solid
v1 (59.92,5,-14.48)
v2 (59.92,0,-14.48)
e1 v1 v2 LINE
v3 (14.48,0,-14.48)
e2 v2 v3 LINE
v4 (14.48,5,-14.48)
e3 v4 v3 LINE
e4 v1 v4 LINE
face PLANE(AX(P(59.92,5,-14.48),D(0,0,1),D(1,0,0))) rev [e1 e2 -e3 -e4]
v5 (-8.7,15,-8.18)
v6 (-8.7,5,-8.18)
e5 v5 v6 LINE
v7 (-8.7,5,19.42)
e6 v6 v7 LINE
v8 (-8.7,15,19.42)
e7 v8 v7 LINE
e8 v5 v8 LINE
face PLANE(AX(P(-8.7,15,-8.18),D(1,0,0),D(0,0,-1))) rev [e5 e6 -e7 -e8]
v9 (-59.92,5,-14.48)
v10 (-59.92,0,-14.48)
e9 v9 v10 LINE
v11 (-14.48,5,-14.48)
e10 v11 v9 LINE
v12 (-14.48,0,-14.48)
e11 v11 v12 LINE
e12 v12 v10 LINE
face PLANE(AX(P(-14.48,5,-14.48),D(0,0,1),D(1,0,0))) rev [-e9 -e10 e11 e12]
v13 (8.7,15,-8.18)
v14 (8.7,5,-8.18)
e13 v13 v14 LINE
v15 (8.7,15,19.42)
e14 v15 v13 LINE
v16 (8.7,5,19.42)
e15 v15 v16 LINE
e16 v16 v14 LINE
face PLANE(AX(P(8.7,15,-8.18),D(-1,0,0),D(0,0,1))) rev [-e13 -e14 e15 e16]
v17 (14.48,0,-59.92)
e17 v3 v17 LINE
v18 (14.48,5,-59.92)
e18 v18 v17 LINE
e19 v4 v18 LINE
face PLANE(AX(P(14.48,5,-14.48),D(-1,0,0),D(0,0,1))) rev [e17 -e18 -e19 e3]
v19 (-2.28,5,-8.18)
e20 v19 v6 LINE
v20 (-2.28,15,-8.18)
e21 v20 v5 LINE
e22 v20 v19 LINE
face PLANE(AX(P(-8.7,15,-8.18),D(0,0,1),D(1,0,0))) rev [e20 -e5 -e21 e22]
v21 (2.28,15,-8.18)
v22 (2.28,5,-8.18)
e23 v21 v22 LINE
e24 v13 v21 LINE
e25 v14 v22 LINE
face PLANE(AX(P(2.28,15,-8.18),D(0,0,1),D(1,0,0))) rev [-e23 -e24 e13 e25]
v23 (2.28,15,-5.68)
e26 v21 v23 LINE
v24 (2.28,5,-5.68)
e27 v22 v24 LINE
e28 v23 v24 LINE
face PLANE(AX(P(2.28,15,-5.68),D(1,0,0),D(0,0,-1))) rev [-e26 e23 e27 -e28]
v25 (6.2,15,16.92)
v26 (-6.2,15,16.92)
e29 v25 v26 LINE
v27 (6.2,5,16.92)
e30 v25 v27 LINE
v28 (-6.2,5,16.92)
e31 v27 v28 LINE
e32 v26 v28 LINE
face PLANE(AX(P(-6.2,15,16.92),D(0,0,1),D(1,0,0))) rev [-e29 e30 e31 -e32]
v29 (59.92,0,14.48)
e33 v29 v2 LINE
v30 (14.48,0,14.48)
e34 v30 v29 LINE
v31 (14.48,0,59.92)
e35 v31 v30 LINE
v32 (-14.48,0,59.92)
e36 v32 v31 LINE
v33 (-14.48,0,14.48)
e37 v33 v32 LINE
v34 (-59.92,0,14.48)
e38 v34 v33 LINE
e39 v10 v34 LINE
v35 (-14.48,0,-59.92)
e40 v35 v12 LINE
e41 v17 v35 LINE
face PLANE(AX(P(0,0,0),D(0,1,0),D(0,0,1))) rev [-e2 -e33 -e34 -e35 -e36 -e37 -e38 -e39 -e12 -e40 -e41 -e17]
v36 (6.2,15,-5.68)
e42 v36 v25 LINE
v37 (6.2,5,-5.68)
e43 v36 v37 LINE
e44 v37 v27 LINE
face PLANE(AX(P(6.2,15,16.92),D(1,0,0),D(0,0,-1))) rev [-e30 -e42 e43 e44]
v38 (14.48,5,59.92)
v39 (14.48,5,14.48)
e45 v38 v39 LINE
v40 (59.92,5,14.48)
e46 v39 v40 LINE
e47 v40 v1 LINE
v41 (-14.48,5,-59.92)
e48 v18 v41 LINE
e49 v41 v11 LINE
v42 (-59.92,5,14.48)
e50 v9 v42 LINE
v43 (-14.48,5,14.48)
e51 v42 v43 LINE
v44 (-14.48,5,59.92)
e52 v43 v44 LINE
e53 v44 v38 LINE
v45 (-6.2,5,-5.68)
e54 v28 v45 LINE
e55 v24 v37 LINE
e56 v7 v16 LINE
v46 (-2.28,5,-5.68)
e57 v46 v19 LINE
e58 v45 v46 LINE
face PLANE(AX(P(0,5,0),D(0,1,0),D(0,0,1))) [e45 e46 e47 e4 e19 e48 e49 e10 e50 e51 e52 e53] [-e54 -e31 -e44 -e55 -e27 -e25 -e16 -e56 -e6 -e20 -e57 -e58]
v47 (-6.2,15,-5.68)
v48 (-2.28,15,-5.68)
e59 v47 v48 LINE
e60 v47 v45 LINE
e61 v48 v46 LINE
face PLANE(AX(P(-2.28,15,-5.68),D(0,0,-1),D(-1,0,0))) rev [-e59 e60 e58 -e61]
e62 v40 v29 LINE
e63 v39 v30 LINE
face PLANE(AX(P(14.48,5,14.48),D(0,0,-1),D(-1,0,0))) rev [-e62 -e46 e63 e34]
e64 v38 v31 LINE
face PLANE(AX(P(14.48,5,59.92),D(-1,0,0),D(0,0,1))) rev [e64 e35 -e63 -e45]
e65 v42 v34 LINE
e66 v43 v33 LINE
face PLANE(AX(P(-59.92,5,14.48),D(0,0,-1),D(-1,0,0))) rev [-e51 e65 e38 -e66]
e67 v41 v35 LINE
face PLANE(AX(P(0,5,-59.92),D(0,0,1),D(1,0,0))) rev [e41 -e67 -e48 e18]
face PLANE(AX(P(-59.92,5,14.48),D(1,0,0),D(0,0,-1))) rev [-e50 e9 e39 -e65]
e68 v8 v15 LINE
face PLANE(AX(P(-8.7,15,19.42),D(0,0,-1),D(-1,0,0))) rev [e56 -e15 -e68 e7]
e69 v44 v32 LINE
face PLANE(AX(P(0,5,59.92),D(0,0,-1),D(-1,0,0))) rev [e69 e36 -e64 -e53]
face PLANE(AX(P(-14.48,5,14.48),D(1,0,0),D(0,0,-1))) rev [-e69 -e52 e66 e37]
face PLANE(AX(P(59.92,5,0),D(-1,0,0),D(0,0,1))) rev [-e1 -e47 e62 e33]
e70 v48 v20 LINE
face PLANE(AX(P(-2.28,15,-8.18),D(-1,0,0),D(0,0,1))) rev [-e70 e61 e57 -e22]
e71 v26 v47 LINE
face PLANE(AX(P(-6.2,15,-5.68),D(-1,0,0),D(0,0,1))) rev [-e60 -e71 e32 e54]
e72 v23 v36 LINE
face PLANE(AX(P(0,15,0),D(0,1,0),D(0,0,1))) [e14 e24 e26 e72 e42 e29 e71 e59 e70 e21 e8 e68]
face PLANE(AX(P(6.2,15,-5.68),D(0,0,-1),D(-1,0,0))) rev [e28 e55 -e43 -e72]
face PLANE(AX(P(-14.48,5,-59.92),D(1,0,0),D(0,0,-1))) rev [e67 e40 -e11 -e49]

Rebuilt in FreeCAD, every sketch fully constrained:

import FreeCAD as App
import Part
import Sketcher


def add_polygon(sketch, points):
    """Adds a closed chain of lines whose ends are joined by coincident constraints."""
    first, n = sketch.GeometryCount, len(points)
    for a, b in zip(points, points[1:] + points[:1]):
        sketch.addGeometry(Part.LineSegment(App.Vector(*a, 0), App.Vector(*b, 0)), False)
    for i in range(n):
        sketch.addConstraint(Sketcher.Constraint("Coincident", first + i, 2, first + (i + 1) % n, 1))

doc = App.newDocument("Part")
params = doc.addObject("Spreadsheet::Sheet", "Params")
for row, (alias, value) in enumerate([
    ("sketch1_width", "45.44 mm"),
    ("sketch1_width2", "28.96 mm"),
    ("pad1_length", "5 mm"),
    ("sketch2_width", "17.4 mm"),
    ("sketch2_width2", "12.4 mm"),
    ("sketch2_height", "27.6 mm"),
    ("sketch2_height2", "2.5 mm"),
    ("sketch2_height3", "22.6 mm"),
    ("pad2_length", "10 mm"),
], start=1):
    params.set(f"A{row}", alias)
    params.set(f"B{row}", "=" + value)
    params.setAlias(f"B{row}", alias)

body = doc.addObject("PartDesign::Body", "Body")

# Sketch on XZ plane
sketch1 = body.newObject("Sketcher::SketchObject", "Sketch")
sketch1.AttachmentSupport = (doc.getObject("XZ_Plane"), [""])
sketch1.MapMode = "FlatFace"
add_polygon(sketch1, [(-14.48, -59.92), (-14.48, -14.48), (-59.92, -14.48), (-59.92, 14.48), (-14.48, 14.48), (-14.48, 59.92), (14.48, 59.92), (14.48, 14.48), (59.92, 14.48), (59.92, -14.48), (14.48, -14.48), (14.48, -59.92)])  # lines 0-11
sketch1.addConstraint(Sketcher.Constraint("Vertical", 0))
sketch1.addConstraint(Sketcher.Constraint("Horizontal", 1))
sketch1.addConstraint(Sketcher.Constraint("Vertical", 2))
sketch1.addConstraint(Sketcher.Constraint("Horizontal", 3))
sketch1.addConstraint(Sketcher.Constraint("Vertical", 4))
sketch1.addConstraint(Sketcher.Constraint("Horizontal", 5))
sketch1.addConstraint(Sketcher.Constraint("Vertical", 6))
sketch1.addConstraint(Sketcher.Constraint("Horizontal", 7))
sketch1.addConstraint(Sketcher.Constraint("Vertical", 8))
sketch1.addConstraint(Sketcher.Constraint("Horizontal", 9))
sketch1.addConstraint(Sketcher.Constraint("Vertical", 10))
sketch1.addConstraint(Sketcher.Constraint("Horizontal", 11))
sketch1.addConstraint(Sketcher.Constraint("Symmetric", 0, 2, 6, 2, -1, 1))
sketch1.addConstraint(Sketcher.Constraint("Symmetric", 2, 2, 8, 2, -1, 1))
sketch1.addConstraint(Sketcher.Constraint("Symmetric", 4, 2, 10, 2, -1, 1))
sketch1.addConstraint(Sketcher.Constraint("Symmetric", 3, 2, 6, 2, -2))
sketch1.addConstraint(Sketcher.Constraint("Equal", 9, 0))
sketch1.addConstraint(Sketcher.Constraint("Equal", 11, 2))
sketch1.addConstraint(Sketcher.Constraint("DistanceX", 1, 2, 1, 1, 45.44))
sketch1.addConstraint(Sketcher.Constraint("DistanceX", 5, 1, 5, 2, 28.96))
sketch1.setExpression("Constraints[30]", "Params.sketch1_width")
sketch1.setExpression("Constraints[31]", "Params.sketch1_width2")
pad1 = body.newObject("PartDesign::Pad", "Pad")
pad1.Profile = sketch1
pad1.setExpression("Length", "Params.pad1_length")
pad1.Reversed = True

# Sketch on XZ plane
sketch2 = body.newObject("Sketcher::SketchObject", "Sketch001")
sketch2.AttachmentSupport = (doc.getObject("XZ_Plane"), [""])
sketch2.MapMode = "FlatFace"
sketch2.AttachmentOffset = App.Placement(App.Vector(0, 0, -5), App.Rotation())
add_polygon(sketch2, [(-2.28, -8.18), (-8.7, -8.18), (-8.7, 19.42), (8.7, 19.42), (8.7, -8.18), (2.28, -8.18), (2.28, -5.68), (6.2, -5.68), (6.2, 16.92), (-6.2, 16.92), (-6.2, -5.68), (-2.28, -5.68)])  # lines 0-11
sketch2.addConstraint(Sketcher.Constraint("Horizontal", 0))
sketch2.addConstraint(Sketcher.Constraint("Vertical", 1))
sketch2.addConstraint(Sketcher.Constraint("Horizontal", 2))
sketch2.addConstraint(Sketcher.Constraint("Vertical", 3))
sketch2.addConstraint(Sketcher.Constraint("Horizontal", 4))
sketch2.addConstraint(Sketcher.Constraint("Vertical", 5))
sketch2.addConstraint(Sketcher.Constraint("Horizontal", 6))
sketch2.addConstraint(Sketcher.Constraint("Vertical", 7))
sketch2.addConstraint(Sketcher.Constraint("Horizontal", 8))
sketch2.addConstraint(Sketcher.Constraint("Vertical", 9))
sketch2.addConstraint(Sketcher.Constraint("Horizontal", 10))
sketch2.addConstraint(Sketcher.Constraint("Vertical", 11))
sketch2.addConstraint(Sketcher.Constraint("Symmetric", 0, 2, 3, 2, -2))
sketch2.addConstraint(Sketcher.Constraint("Symmetric", 6, 2, 9, 2, -2))
sketch2.addConstraint(Sketcher.Constraint("Equal", 0, 4))
sketch2.addConstraint(Sketcher.Constraint("DistanceX", 2, 1, 2, 2, 17.4))
sketch2.addConstraint(Sketcher.Constraint("DistanceX", 8, 2, 8, 1, 12.4))
sketch2.addConstraint(Sketcher.Constraint("DistanceY", 1, 1, 1, 2, 27.6))
sketch2.addConstraint(Sketcher.Constraint("DistanceY", 5, 1, 5, 2, 2.5))
sketch2.addConstraint(Sketcher.Constraint("DistanceY", 7, 1, 7, 2, 22.6))
sketch2.addConstraint(Sketcher.Constraint("DistanceX", 0, 2, 0, 1, 6.42))
sketch2.addConstraint(Sketcher.Constraint("DistanceY", 0, 2, -1, 1, 8.18))
sketch2.setExpression("Constraints[27]", "Params.sketch2_width")
sketch2.setExpression("Constraints[28]", "Params.sketch2_width2")
sketch2.setExpression("Constraints[29]", "Params.sketch2_height")
sketch2.setExpression("Constraints[30]", "Params.sketch2_height2")
sketch2.setExpression("Constraints[31]", "Params.sketch2_height3")
pad2 = body.newObject("PartDesign::Pad", "Pad001")
pad2.Profile = sketch2
pad2.setExpression("Length", "Params.pad2_length")
pad2.Reversed = True

doc.recompute()
